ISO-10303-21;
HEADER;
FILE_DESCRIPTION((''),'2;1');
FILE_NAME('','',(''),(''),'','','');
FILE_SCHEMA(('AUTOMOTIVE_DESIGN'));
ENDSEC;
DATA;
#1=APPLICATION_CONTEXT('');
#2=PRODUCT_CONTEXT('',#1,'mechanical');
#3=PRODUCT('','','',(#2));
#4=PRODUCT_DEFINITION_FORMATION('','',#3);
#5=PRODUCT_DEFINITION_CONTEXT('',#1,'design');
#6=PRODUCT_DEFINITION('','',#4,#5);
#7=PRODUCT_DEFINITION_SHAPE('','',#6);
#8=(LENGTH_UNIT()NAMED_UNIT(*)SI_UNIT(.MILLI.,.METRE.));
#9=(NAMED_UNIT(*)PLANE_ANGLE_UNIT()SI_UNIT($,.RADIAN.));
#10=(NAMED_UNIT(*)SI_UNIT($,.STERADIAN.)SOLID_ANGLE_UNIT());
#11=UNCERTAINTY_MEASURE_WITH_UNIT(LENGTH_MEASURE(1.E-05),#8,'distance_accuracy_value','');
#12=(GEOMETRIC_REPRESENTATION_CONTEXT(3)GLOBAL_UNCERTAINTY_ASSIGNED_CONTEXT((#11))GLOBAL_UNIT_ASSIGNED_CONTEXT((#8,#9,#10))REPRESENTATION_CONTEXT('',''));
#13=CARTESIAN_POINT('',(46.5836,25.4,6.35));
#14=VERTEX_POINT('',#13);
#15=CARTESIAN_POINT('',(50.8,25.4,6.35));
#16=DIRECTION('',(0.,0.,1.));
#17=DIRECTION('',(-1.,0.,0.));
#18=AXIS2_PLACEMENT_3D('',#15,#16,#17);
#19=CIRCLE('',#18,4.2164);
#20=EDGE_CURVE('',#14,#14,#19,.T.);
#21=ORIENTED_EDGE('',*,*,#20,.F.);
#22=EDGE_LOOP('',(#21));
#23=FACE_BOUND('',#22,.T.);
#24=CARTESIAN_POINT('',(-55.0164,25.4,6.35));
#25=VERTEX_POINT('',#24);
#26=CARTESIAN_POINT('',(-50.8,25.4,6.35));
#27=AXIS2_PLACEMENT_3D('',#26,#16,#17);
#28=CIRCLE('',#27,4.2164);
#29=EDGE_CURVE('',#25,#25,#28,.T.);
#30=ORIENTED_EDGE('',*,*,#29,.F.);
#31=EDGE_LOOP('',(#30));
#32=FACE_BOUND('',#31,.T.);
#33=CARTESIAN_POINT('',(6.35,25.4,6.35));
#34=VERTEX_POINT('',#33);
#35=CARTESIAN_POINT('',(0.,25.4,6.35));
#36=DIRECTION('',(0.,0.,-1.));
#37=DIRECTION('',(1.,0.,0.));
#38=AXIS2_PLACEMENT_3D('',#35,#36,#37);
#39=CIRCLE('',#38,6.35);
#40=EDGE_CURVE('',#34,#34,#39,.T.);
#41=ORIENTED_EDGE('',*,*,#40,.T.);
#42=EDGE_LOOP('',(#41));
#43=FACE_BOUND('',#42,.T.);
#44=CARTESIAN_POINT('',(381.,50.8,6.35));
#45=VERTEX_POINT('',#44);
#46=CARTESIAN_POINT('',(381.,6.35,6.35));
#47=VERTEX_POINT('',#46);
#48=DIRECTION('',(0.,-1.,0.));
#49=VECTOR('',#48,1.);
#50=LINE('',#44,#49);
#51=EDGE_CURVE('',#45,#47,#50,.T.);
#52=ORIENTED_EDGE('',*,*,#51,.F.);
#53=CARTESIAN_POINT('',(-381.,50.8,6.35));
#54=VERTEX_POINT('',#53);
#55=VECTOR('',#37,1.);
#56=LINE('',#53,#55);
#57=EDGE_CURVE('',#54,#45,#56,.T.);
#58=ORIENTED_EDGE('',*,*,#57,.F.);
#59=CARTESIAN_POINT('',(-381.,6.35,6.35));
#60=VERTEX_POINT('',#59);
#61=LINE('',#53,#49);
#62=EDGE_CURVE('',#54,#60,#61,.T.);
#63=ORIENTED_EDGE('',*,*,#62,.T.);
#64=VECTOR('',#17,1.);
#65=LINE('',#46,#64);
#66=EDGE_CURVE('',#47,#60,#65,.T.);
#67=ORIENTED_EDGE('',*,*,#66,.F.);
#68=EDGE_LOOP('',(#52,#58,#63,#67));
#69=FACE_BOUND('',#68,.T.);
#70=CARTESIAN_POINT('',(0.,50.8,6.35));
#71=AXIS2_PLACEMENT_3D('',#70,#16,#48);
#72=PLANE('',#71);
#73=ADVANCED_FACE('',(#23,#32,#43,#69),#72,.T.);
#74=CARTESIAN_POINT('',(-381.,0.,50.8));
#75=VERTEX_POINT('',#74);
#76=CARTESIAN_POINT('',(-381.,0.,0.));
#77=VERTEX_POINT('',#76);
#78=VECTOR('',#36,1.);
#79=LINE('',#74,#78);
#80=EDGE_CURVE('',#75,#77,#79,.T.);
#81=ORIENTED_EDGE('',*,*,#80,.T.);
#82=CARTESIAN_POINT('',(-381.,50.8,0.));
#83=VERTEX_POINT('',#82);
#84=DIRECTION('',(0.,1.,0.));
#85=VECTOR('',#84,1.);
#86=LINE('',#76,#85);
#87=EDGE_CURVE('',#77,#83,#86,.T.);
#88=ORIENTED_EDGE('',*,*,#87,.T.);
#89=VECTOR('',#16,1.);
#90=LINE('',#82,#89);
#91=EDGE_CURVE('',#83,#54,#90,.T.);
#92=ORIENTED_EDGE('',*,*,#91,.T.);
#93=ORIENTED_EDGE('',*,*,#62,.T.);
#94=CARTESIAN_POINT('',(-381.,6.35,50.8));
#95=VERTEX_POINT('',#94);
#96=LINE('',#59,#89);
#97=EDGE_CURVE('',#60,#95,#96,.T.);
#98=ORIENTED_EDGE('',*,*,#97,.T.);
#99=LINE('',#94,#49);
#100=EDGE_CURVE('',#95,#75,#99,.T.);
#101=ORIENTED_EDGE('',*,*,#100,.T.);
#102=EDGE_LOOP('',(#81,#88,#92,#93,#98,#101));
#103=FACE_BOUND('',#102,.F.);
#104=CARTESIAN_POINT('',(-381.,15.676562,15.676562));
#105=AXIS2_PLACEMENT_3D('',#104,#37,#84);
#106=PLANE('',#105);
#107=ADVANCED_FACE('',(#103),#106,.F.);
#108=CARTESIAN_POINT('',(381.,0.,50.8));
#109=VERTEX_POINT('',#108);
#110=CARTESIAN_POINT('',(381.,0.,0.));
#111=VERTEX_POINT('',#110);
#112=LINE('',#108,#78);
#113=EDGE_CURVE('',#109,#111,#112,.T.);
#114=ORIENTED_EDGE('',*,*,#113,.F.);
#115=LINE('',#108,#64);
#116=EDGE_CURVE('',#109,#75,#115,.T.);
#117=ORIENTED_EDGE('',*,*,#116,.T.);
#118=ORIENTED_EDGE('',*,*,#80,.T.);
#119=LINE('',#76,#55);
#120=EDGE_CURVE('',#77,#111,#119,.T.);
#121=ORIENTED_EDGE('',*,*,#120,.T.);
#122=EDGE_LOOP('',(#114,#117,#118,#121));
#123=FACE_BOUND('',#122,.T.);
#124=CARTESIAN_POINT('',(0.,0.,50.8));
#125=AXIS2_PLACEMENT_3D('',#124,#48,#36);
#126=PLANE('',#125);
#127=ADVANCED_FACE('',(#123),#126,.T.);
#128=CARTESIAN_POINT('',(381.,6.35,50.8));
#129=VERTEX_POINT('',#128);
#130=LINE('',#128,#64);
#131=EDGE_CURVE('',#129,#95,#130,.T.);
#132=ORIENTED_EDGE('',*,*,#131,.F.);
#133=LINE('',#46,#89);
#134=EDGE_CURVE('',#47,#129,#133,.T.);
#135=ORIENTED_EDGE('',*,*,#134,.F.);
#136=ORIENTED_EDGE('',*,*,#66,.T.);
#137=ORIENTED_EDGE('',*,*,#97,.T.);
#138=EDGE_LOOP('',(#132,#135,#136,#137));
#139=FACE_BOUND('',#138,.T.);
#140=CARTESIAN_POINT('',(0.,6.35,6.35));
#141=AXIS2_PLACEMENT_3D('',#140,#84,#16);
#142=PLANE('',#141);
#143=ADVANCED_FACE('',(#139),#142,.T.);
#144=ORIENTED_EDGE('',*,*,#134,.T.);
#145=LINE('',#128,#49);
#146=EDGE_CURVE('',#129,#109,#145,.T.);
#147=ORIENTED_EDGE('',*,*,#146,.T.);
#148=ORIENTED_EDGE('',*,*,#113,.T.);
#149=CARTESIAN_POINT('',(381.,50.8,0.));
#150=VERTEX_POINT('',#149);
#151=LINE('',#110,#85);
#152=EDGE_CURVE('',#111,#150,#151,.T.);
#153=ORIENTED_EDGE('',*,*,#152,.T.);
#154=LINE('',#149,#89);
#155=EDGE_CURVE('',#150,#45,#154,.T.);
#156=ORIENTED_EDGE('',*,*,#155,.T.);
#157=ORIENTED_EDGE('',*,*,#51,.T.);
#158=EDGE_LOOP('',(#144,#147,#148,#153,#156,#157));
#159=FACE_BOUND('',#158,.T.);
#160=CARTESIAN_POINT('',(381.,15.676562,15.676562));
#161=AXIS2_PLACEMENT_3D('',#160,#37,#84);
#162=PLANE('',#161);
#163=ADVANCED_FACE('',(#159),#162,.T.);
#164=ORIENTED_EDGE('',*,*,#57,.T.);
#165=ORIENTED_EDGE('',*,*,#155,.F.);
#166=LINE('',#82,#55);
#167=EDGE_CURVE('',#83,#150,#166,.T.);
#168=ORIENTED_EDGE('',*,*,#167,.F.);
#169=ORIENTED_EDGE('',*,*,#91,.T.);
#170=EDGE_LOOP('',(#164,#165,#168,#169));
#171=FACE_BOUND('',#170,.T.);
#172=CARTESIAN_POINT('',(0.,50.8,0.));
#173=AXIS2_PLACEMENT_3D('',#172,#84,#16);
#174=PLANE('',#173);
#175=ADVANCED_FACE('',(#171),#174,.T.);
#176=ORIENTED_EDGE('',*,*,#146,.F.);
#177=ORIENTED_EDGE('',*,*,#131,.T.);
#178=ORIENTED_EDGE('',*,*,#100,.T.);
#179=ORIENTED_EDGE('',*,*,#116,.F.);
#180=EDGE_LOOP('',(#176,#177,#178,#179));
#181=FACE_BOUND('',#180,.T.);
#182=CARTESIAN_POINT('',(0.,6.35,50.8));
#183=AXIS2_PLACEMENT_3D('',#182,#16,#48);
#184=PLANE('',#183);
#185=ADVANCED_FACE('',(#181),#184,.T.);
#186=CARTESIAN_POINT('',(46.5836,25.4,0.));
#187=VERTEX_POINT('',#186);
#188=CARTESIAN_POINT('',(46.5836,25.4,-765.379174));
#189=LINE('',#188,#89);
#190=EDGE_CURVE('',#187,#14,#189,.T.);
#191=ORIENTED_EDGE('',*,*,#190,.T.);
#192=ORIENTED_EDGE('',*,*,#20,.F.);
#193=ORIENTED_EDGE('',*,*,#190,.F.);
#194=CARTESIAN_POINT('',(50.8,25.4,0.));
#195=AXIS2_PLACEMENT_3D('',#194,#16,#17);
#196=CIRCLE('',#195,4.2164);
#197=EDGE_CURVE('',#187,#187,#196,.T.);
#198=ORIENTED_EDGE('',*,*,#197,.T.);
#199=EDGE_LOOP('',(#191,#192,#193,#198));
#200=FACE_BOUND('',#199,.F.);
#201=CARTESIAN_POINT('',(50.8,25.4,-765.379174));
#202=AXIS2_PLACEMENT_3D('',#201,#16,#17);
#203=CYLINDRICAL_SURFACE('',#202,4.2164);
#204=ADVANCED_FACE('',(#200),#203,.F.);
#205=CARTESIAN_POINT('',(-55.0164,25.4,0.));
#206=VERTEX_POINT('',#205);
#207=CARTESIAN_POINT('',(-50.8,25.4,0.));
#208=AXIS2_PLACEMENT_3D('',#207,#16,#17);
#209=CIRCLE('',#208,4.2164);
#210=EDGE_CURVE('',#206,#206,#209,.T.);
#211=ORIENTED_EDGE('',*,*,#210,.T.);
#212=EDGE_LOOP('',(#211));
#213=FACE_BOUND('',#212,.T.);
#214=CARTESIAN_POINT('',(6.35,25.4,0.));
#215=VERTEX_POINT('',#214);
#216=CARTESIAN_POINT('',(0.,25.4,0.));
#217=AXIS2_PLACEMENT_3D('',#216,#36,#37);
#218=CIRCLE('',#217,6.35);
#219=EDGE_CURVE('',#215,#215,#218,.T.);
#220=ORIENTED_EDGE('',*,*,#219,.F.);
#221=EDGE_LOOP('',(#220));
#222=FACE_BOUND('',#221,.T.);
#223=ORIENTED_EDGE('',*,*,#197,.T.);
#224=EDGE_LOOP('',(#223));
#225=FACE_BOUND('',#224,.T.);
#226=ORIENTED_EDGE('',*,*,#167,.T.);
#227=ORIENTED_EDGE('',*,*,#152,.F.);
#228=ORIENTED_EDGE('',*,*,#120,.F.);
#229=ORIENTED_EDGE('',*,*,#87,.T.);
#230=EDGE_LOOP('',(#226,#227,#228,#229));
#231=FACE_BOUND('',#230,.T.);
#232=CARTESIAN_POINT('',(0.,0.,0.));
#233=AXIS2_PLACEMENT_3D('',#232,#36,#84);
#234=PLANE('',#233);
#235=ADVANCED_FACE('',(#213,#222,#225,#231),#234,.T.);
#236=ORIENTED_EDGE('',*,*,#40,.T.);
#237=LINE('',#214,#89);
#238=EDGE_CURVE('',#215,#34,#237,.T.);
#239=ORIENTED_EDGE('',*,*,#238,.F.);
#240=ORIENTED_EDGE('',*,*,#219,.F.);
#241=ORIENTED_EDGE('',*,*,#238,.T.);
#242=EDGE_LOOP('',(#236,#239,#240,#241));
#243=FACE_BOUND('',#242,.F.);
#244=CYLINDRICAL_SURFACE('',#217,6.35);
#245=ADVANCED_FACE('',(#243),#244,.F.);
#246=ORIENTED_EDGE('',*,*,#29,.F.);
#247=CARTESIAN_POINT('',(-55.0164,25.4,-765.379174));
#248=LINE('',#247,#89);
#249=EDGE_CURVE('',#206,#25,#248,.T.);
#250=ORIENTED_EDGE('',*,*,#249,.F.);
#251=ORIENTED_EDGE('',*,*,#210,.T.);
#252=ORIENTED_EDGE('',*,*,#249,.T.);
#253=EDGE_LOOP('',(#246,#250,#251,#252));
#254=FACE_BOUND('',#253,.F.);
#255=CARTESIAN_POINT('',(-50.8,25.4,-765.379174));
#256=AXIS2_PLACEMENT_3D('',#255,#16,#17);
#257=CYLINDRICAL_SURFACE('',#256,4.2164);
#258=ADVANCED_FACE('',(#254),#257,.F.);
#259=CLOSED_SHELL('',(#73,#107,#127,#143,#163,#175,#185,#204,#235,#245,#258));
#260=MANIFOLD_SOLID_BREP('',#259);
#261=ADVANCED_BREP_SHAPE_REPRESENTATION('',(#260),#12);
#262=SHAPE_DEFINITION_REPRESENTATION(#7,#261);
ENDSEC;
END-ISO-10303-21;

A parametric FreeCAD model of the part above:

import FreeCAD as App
import Part
import Sketcher
Q = App.Units.Quantity


def add_polygon(sketch, points):
    """Adds a closed chain of lines whose ends are joined by coincident constraints."""
    first, n = sketch.GeometryCount, len(points)
    for a, b in zip(points, points[1:] + points[:1]):
        sketch.addGeometry(Part.LineSegment(App.Vector(*a, 0), App.Vector(*b, 0)), False)
    for i in range(n):
        sketch.addConstraint(Sketcher.Constraint("Coincident", first + i, 2, first + (i + 1) % n, 1))

doc = App.newDocument("Part")
params = doc.addObject("Spreadsheet::Sheet", "Params")
for row, (alias, value) in enumerate([
    ("sketch1_width", "2 in"),
    ("sketch1_width2", "1.75 in"),
    ("pad1_length", "30 in"),
    ("sketch2_diameter", "0.5 in"),
    ("sketch3_diameter", "0.332 in"),
    ("hole_diameter", "0.332 in"),
], start=1):
    params.set(f"A{row}", alias)
    params.set(f"B{row}", "=" + value)
    params.setAlias(f"B{row}", alias)

body = doc.addObject("PartDesign::Body", "Body")

# Sketch on YZ plane
sketch1 = doc.addObject("Sketcher::SketchObject", "Sketch")
body.addObject(sketch1)
sketch1.AttachmentSupport = (doc.YZ_Plane, [""])
sketch1.MapMode = "FlatFace"
add_polygon(sketch1, [(0, 51), (0, 0), (51, 0), (51, 6), (6, 6), (6, 51)])  # lines 0-5
sketch1.addConstraint([
    Sketcher.Constraint("Vertical", 0),
    Sketcher.Constraint("Horizontal", 1),
    Sketcher.Constraint("Vertical", 2),
    Sketcher.Constraint("Horizontal", 3),
    Sketcher.Constraint("Vertical", 4),
    Sketcher.Constraint("Horizontal", 5),
    Sketcher.Constraint("Coincident", 0, 2, -1, 1),
    Sketcher.Constraint("Equal", 1, 0),
    Sketcher.Constraint("Equal", 5, 2),
    Sketcher.Constraint("DistanceX", 1, 1, 1, 2, Q("2 in")),
    Sketcher.Constraint("DistanceX", 3, 2, 3, 1, Q("1.75 in")),
])
sketch1.setExpression("Constraints[15]", "Params.sketch1_width")
sketch1.setExpression("Constraints[16]", "Params.sketch1_width2")
pad1 = doc.addObject("PartDesign::Pad", "Pad")
body.addObject(pad1)
pad1.Profile = sketch1
pad1.setExpression("Length", "Params.pad1_length")
pad1.Midplane = True

# Sketch on XY plane
sketch2 = doc.addObject("Sketcher::SketchObject", "Sketch001")
body.addObject(sketch2)
sketch2.AttachmentSupport = (doc.XY_Plane, [""])
sketch2.MapMode = "FlatFace"
sketch2.addGeometry(Part.Circle(App.Vector(0, 25, 0), App.Vector(0, 0, 1), 6), False)
sketch2.addConstraint([
    Sketcher.Constraint("PointOnObject", 0, 3, -2),
    Sketcher.Constraint("Diameter", 0, Q("0.5 in")),
    Sketcher.Constraint("DistanceY", -1, 1, 0, 3, Q("1 in")),
])
sketch2.setExpression("Constraints[1]", "Params.sketch2_diameter")
pocket1 = doc.addObject("PartDesign::Pocket", "Pocket")
body.addObject(pocket1)
pocket1.Profile = sketch2
pocket1.Type = "ThroughAll"
pocket1.Reversed = True

# Sketch on XY plane
sketch3 = doc.addObject("Sketcher::SketchObject", "Sketch002")
body.addObject(sketch3)
sketch3.AttachmentSupport = (doc.XY_Plane, [""])
sketch3.MapMode = "FlatFace"
sketch3.addGeometry([
    Part.Circle(App.Vector(50.8, 25.4, 0), App.Vector(0, 0, 1), 4.2),
    Part.Circle(App.Vector(-50.8, 25.4, 0), App.Vector(0, 0, 1), 4.2),
], False)
sketch3.addConstraint([
    Sketcher.Constraint("Equal", 0, 1),
    Sketcher.Constraint("Symmetric", 0, 3, 1, 3, -2),
    Sketcher.Constraint("Diameter", 0, Q("0.332 in")),
    Sketcher.Constraint("DistanceX", -1, 1, 0, 3, Q("2 in")),
    Sketcher.Constraint("DistanceY", -1, 1, 0, 3, Q("1 in")),
])
sketch3.setExpression("Constraints[2]", "Params.sketch3_diameter")
doc.recompute()
hole = doc.addObject("PartDesign::Hole", "Hole")
body.addObject(hole)
hole.Profile = sketch3
hole.ThreadType = "None"
hole.setExpression("Diameter", "Params.hole_diameter")
hole.DepthType = "ThroughAll"
hole.Reversed = True

doc.recompute()
